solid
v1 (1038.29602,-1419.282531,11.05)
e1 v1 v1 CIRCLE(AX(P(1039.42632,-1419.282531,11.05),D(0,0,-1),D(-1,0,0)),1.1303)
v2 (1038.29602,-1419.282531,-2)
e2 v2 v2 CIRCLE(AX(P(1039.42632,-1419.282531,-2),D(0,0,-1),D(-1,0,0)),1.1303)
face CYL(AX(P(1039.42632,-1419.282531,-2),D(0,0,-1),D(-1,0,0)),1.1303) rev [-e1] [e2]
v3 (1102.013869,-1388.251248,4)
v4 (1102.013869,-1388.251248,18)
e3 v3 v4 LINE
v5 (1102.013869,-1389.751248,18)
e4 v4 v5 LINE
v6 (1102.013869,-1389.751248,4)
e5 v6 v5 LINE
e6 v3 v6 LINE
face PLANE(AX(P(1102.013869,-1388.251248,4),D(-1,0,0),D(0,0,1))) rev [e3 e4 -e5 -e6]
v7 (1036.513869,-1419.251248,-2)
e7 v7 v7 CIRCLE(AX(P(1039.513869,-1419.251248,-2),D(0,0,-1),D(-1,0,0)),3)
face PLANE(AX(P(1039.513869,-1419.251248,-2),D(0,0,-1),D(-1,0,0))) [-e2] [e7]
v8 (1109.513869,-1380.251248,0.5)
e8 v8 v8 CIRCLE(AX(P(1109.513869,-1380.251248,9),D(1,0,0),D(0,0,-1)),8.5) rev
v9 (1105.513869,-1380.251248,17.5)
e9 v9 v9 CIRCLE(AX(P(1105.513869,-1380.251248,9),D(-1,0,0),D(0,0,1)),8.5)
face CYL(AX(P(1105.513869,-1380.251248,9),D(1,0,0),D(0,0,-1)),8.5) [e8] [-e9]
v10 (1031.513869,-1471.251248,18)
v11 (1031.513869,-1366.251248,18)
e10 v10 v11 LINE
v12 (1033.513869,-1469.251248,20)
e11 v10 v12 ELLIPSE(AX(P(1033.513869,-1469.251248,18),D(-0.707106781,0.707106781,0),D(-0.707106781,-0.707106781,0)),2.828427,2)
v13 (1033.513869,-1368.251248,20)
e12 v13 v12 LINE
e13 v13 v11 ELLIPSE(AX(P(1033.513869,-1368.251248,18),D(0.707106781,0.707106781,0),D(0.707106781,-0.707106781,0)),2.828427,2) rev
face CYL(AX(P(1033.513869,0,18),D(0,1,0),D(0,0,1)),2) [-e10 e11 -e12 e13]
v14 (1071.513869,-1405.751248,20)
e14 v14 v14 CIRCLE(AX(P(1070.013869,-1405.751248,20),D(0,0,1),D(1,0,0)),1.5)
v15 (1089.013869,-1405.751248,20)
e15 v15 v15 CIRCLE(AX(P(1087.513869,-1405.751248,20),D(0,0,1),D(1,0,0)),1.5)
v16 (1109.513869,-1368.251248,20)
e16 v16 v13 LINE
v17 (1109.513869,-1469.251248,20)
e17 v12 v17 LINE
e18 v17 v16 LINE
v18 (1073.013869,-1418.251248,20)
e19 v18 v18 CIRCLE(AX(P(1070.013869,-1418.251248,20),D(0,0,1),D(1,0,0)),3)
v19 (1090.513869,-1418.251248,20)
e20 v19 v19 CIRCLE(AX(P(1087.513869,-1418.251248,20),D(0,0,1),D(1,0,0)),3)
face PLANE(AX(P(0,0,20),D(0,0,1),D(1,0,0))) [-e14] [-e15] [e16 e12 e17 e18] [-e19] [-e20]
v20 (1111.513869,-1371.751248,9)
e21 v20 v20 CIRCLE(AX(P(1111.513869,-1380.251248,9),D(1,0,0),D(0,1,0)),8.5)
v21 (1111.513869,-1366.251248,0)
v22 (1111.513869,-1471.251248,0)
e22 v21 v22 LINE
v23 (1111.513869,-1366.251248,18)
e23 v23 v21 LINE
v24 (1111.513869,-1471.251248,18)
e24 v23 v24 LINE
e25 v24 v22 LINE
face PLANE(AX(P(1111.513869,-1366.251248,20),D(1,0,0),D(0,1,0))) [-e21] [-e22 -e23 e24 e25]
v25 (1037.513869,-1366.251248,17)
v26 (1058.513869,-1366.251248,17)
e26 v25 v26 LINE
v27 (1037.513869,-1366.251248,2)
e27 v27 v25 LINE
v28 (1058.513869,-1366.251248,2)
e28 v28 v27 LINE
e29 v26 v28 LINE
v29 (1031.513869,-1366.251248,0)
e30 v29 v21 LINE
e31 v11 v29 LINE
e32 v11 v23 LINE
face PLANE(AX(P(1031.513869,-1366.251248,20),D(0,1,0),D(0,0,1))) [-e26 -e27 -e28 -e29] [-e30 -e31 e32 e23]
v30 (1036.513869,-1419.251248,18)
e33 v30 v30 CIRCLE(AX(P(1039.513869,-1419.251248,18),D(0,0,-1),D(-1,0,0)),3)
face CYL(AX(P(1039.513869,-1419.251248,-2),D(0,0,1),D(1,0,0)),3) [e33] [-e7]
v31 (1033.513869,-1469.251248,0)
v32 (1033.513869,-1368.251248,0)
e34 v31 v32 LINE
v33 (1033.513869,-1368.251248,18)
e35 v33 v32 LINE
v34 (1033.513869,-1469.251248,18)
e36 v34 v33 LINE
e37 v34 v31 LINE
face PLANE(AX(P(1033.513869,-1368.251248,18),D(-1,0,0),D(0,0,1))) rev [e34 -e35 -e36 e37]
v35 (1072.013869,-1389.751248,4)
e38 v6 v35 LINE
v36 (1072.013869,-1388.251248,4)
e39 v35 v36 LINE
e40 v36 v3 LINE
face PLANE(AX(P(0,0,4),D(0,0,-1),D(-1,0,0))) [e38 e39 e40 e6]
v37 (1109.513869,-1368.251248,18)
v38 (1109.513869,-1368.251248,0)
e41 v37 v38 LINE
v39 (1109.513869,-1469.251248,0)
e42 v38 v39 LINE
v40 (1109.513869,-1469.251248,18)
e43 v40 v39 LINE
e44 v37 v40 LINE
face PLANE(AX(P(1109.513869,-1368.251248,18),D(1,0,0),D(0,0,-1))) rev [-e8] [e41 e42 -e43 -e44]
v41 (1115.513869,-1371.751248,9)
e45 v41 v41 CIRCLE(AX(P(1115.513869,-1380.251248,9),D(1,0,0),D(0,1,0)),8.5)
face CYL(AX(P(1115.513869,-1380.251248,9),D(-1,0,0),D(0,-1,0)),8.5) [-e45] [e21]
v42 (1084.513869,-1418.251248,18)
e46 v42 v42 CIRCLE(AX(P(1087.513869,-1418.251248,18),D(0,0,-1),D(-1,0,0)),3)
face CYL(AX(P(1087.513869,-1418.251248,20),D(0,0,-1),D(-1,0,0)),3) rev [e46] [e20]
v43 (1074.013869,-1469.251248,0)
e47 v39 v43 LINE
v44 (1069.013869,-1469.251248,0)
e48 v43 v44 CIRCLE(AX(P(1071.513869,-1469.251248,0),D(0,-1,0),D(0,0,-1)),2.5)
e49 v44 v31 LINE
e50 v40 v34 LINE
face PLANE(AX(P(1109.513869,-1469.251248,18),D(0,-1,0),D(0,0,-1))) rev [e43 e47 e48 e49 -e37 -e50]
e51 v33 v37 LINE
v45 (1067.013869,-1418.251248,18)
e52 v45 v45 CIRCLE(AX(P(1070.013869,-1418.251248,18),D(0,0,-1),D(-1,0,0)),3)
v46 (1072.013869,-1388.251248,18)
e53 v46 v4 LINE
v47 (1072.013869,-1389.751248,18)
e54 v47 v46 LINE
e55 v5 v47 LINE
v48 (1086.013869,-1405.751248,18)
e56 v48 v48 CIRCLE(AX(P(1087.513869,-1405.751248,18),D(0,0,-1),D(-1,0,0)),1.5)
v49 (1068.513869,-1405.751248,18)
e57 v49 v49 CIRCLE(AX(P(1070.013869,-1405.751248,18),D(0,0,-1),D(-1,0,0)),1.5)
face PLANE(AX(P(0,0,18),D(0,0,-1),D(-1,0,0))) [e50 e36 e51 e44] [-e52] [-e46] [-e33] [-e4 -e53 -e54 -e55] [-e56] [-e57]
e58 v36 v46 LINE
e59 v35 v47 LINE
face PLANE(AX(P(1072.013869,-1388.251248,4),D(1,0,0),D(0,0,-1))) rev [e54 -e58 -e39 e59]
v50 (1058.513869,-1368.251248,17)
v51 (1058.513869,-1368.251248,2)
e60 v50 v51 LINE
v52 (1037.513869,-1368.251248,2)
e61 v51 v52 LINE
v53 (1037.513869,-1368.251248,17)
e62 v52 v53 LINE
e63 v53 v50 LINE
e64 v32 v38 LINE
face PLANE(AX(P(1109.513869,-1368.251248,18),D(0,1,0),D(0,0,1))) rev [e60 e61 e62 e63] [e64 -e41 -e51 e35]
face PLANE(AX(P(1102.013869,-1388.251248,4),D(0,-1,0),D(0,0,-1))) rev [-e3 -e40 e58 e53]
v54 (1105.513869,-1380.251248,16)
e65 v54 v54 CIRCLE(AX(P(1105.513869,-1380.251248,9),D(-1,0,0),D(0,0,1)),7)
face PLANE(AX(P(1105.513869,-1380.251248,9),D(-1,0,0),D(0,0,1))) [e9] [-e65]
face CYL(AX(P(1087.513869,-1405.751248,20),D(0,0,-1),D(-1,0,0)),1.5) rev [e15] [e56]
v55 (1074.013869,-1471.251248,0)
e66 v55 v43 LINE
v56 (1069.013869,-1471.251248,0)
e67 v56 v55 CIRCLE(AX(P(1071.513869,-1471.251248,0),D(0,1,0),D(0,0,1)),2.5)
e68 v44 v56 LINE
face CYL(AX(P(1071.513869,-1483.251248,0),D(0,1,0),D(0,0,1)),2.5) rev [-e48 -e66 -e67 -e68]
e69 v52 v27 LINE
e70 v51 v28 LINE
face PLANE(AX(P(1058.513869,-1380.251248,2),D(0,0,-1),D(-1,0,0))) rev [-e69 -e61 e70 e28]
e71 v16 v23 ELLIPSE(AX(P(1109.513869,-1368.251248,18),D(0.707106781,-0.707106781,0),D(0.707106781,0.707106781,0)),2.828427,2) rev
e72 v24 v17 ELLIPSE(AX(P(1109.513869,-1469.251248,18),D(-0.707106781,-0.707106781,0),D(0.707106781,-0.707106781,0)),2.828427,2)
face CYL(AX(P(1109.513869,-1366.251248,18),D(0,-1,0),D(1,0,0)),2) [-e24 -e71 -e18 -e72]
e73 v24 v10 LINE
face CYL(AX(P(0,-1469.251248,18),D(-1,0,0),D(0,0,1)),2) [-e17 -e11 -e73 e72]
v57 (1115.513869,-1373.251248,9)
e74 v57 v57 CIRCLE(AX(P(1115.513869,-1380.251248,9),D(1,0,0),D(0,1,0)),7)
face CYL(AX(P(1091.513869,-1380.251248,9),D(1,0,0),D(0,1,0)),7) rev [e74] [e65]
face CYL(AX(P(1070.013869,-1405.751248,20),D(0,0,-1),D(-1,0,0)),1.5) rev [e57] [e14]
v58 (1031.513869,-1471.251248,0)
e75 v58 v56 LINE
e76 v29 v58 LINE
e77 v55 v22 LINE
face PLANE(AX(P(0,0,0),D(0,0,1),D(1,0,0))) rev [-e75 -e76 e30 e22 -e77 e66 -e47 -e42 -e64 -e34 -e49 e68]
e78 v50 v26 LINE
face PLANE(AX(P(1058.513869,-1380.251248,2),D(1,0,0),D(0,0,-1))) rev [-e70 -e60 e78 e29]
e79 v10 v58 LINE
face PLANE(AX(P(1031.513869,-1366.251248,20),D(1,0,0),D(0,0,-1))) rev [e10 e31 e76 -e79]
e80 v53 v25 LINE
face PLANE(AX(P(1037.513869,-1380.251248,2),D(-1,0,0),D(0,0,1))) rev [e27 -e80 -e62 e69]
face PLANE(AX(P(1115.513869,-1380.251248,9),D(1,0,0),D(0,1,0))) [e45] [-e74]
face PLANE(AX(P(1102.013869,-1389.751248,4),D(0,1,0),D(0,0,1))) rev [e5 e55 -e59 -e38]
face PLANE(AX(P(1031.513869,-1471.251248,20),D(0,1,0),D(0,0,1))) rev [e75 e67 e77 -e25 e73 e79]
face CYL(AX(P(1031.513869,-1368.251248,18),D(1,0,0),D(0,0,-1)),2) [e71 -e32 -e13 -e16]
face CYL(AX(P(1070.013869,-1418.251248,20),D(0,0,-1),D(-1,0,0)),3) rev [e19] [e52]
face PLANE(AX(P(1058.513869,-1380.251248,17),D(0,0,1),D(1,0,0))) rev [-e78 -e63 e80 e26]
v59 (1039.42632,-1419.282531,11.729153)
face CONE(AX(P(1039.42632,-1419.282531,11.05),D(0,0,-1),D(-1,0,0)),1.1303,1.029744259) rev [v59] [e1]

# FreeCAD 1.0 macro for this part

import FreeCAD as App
import Part
import Sketcher
Q = App.Units.Quantity


def edges_at(feature, points):
    """Names of the edges that pass closest to the given points."""
    edges = feature.Shape.Edges
    near = lambda p: min(range(len(edges)), key=lambda i: edges[i].distToShape(Part.Vertex(*p))[0])
    return sorted({f"Edge{near(p) + 1}" for p in points})

doc = App.newDocument("Part")
body = doc.addObject("PartDesign::Body", "Body")

# Sketch on XY plane
sketch1 = body.newObject("Sketcher::SketchObject", "Sketch")
sketch1.AttachmentSupport = (doc.getObject("XY_Plane"), [""])
sketch1.MapMode = "FlatFace"
sketch1.addGeometry([
    Part.LineSegment(App.Vector(1032, -1366, 0), App.Vector(1032, -1471, 0)),
    Part.LineSegment(App.Vector(1032, -1471, 0), App.Vector(1112, -1471, 0)),
    Part.LineSegment(App.Vector(1112, -1471, 0), App.Vector(1112, -1366, 0)),
    Part.LineSegment(App.Vector(1112, -1366, 0), App.Vector(1032, -1366, 0)),
], False)
sketch1.addConstraint([
    Sketcher.Constraint("Coincident", 0, 2, 1, 1),
    Sketcher.Constraint("Coincident", 1, 2, 2, 1),
    Sketcher.Constraint("Coincident", 2, 2, 3, 1),
    Sketcher.Constraint("Coincident", 3, 2, 0, 1),
    Sketcher.Constraint("Vertical", 0),
    Sketcher.Constraint("Horizontal", 1),
    Sketcher.Constraint("Vertical", 2),
    Sketcher.Constraint("Horizontal", 3),
    Sketcher.Constraint("DistanceX", 1, 1, 1, 2, Q("80 mm")),
    Sketcher.Constraint("DistanceY", 0, 2, 0, 1, Q("105 mm")),
    Sketcher.Constraint("DistanceX", -1, 1, 0, 2, Q("1031.513869 mm")),
    Sketcher.Constraint("DistanceY", 0, 2, -1, 1, Q("1471.251248 mm")),
])
pad1 = body.newObject("PartDesign::Pad", "Pad")
pad1.Profile = sketch1
pad1.Length = 20

# Sketch on XY plane
sketch2 = body.newObject("Sketcher::SketchObject", "Sketch001")
sketch2.AttachmentSupport = (doc.getObject("XY_Plane"), [""])
sketch2.MapMode = "FlatFace"
sketch2.addGeometry([
    Part.Circle(App.Vector(1087.5, -1418.3, 0), App.Vector(0, 0, 1), 3),
    Part.Circle(App.Vector(1087.5, -1405.8, 0), App.Vector(0, 0, 1), 1.5),
    Part.Circle(App.Vector(1070, -1405.8, 0), App.Vector(0, 0, 1), 1.5),
    Part.Circle(App.Vector(1070, -1418.3, 0), App.Vector(0, 0, 1), 3),
], False)
sketch2.addConstraint([
    Sketcher.Constraint("Equal", 1, 2),
    Sketcher.Constraint("Equal", 0, 3),
    Sketcher.Constraint("Horizontal", 1, 3, 2, 3),
    Sketcher.Constraint("Horizontal", 0, 3, 3, 3),
    Sketcher.Constraint("Vertical", 0, 3, 1, 3),
    Sketcher.Constraint("Vertical", 2, 3, 3, 3),
    Sketcher.Constraint("Diameter", 0, Q("6 mm")),
    Sketcher.Constraint("Diameter", 1, Q("3 mm")),
    Sketcher.Constraint("DistanceY", 0, 3, 1, 3, Q("12.5 mm")),
    Sketcher.Constraint("DistanceX", 2, 3, 1, 3, Q("17.5 mm")),
    Sketcher.Constraint("DistanceX", -1, 1, 0, 3, Q("1087.513869 mm")),
    Sketcher.Constraint("DistanceY", 0, 3, -1, 1, Q("1418.251248 mm")),
])
pocket1 = body.newObject("PartDesign::Pocket", "Pocket")
pocket1.Profile = sketch2
pocket1.Type = "ThroughAll"
pocket1.Midplane = True

# Sketch on XY plane
sketch3 = body.newObject("Sketcher::SketchObject", "Sketch002")
sketch3.AttachmentSupport = (doc.getObject("XY_Plane"), [""])
sketch3.MapMode = "FlatFace"
sketch3.addGeometry([
    Part.LineSegment(App.Vector(1110, -1368, 0), App.Vector(1110, -1469, 0)),
    Part.LineSegment(App.Vector(1110, -1469, 0), App.Vector(1034, -1469, 0)),
    Part.LineSegment(App.Vector(1034, -1469, 0), App.Vector(1034, -1368, 0)),
    Part.LineSegment(App.Vector(1034, -1368, 0), App.Vector(1110, -1368, 0)),
], False)
sketch3.addConstraint([
    Sketcher.Constraint("Coincident", 0, 2, 1, 1),
    Sketcher.Constraint("Coincident", 1, 2, 2, 1),
    Sketcher.Constraint("Coincident", 2, 2, 3, 1),
    Sketcher.Constraint("Coincident", 3, 2, 0, 1),
    Sketcher.Constraint("Vertical", 0),
    Sketcher.Constraint("Horizontal", 1),
    Sketcher.Constraint("Vertical", 2),
    Sketcher.Constraint("Horizontal", 3),
    Sketcher.Constraint("DistanceX", 1, 2, 1, 1, Q("76 mm")),
    Sketcher.Constraint("DistanceY", 0, 2, 0, 1, Q("101 mm")),
    Sketcher.Constraint("DistanceX", -1, 1, 0, 2, Q("1109.513869 mm")),
    Sketcher.Constraint("DistanceY", 0, 2, -1, 1, Q("1469.251248 mm")),
])
pocket2 = body.newObject("PartDesign::Pocket", "Pocket001")
pocket2.Profile = sketch3
pocket2.Length = 18
pocket2.Reversed = True

# Sketch on YZ plane
sketch4 = body.newObject("Sketcher::SketchObject", "Sketch003")
sketch4.AttachmentSupport = (doc.getObject("YZ_Plane"), [""])
sketch4.MapMode = "FlatFace"
sketch4.AttachmentOffset = App.Placement(App.Vector(0, 0, 1109.513869), App.Rotation())
sketch4.addGeometry(Part.Circle(App.Vector(-1380, 9, 0), App.Vector(0, 0, 1), 6), False)
sketch4.addConstraint([
    Sketcher.Constraint("Diameter", 0, Q("13 mm")),
    Sketcher.Constraint("DistanceY", -1, 1, 0, 3, Q("9 mm")),
    Sketcher.Constraint("DistanceX", 0, 3, -1, 1, Q("1380.251248 mm")),
])
pocket3 = body.newObject("PartDesign::Pocket", "Pocket002")
pocket3.Profile = sketch4
pocket3.Length = 18
pocket3.Reversed = True

# Sketch on YZ plane
sketch5 = body.newObject("Sketcher::SketchObject", "Sketch004")
sketch5.AttachmentSupport = (doc.getObject("YZ_Plane"), [""])
sketch5.MapMode = "FlatFace"
sketch5.AttachmentOffset = App.Placement(App.Vector(0, 0, 1111.513869), App.Rotation())
sketch5.addGeometry(Part.Circle(App.Vector(-1380, 9, 0), App.Vector(0, 0, 1), 8), False)
sketch5.addConstraint([
    Sketcher.Constraint("Diameter", 0, Q("17 mm")),
    Sketcher.Constraint("DistanceY", -1, 1, 0, 3, Q("9 mm")),
    Sketcher.Constraint("DistanceX", 0, 3, -1, 1, Q("1380.251248 mm")),
])
pad2 = body.newObject("PartDesign::Pad", "Pad001")
pad2.Profile = sketch5
pad2.Length = 4

# Sketch on YZ plane
sketch6 = body.newObject("Sketcher::SketchObject", "Sketch005")
sketch6.AttachmentSupport = (doc.getObject("YZ_Plane"), [""])
sketch6.MapMode = "FlatFace"
sketch6.AttachmentOffset = App.Placement(App.Vector(0, 0, 1105.513869), App.Rotation())
sketch6.addGeometry(Part.Circle(App.Vector(-1380, 9, 0), App.Vector(0, 0, 1), 8), False)
sketch6.addConstraint([
    Sketcher.Constraint("Diameter", 0, Q("17 mm")),
    Sketcher.Constraint("DistanceY", -1, 1, 0, 3, Q("9 mm")),
    Sketcher.Constraint("DistanceX", 0, 3, -1, 1, Q("1380.251248 mm")),
])
pad3 = body.newObject("PartDesign::Pad", "Pad002")
pad3.Profile = sketch6
pad3.Length = 4

# Sketch on YZ plane
sketch7 = body.newObject("Sketcher::SketchObject", "Sketch006")
sketch7.AttachmentSupport = (doc.getObject("YZ_Plane"), [""])
sketch7.MapMode = "FlatFace"
sketch7.AttachmentOffset = App.Placement(App.Vector(0, 0, 1115.513869), App.Rotation())
sketch7.addGeometry(Part.Circle(App.Vector(-1380, 9, 0), App.Vector(0, 0, 1), 7), False)
sketch7.addConstraint([
    Sketcher.Constraint("Diameter", 0, Q("14 mm")),
    Sketcher.Constraint("DistanceY", -1, 1, 0, 3, Q("9 mm")),
    Sketcher.Constraint("DistanceX", 0, 3, -1, 1, Q("1380.251248 mm")),
])
pocket4 = body.newObject("PartDesign::Pocket", "Pocket003")
pocket4.Profile = sketch7
pocket4.Length = 24

# Sketch on XY plane
sketch8 = body.newObject("Sketcher::SketchObject", "Sketch007")
sketch8.AttachmentSupport = (doc.getObject("XY_Plane"), [""])
sketch8.MapMode = "FlatFace"
sketch8.AttachmentOffset = App.Placement(App.Vector(0, 0, 18), App.Rotation())
sketch8.addGeometry([
    Part.LineSegment(App.Vector(1102, -1388.3, 0), App.Vector(1102, -1389.8, 0)),
    Part.LineSegment(App.Vector(1102, -1389.8, 0), App.Vector(1072, -1389.8, 0)),
    Part.LineSegment(App.Vector(1072, -1389.8, 0), App.Vector(1072, -1388.3, 0)),
    Part.LineSegment(App.Vector(1072, -1388.3, 0), App.Vector(1102, -1388.3, 0)),
], False)
sketch8.addConstraint([
    Sketcher.Constraint("Coincident", 0, 2, 1, 1),
    Sketcher.Constraint("Coincident", 1, 2, 2, 1),
    Sketcher.Constraint("Coincident", 2, 2, 3, 1),
    Sketcher.Constraint("Coincident", 3, 2, 0, 1),
    Sketcher.Constraint("Vertical", 0),
    Sketcher.Constraint("Horizontal", 1),
    Sketcher.Constraint("Vertical", 2),
    Sketcher.Constraint("Horizontal", 3),
    Sketcher.Constraint("DistanceX", 1, 2, 1, 1, Q("30 mm")),
    Sketcher.Constraint("DistanceY", 0, 2, 0, 1, Q("1.5 mm")),
    Sketcher.Constraint("DistanceX", -1, 1, 0, 2, Q("1102.013869 mm")),
    Sketcher.Constraint("DistanceY", 0, 2, -1, 1, Q("1389.751248 mm")),
])
pad4 = body.newObject("PartDesign::Pad", "Pad003")
pad4.Profile = sketch8
pad4.Length = 14
pad4.Reversed = True

# Sketch on XZ plane
sketch9 = body.newObject("Sketcher::SketchObject", "Sketch008")
sketch9.AttachmentSupport = (doc.getObject("XZ_Plane"), [""])
sketch9.MapMode = "FlatFace"
sketch9.AttachmentOffset = App.Placement(App.Vector(0, 0, 1469.251248), App.Rotation())
sketch9.addGeometry(Part.Circle(App.Vector(1071.5, 0, 0), App.Vector(0, 0, 1), 2.5), False)
sketch9.addConstraint([
    Sketcher.Constraint("PointOnObject", 0, 3, -1),
    Sketcher.Constraint("Diameter", 0, Q("5 mm")),
    Sketcher.Constraint("DistanceX", -1, 1, 0, 3, Q("1071.513869 mm")),
])
pocket5 = body.newObject("PartDesign::Pocket", "Pocket004")
pocket5.Profile = sketch9
pocket5.Length = 14
pocket5.Reversed = True

# Sketch on XZ plane
sketch10 = body.newObject("Sketcher::SketchObject", "Sketch009")
sketch10.AttachmentSupport = (doc.getObject("XZ_Plane"), [""])
sketch10.MapMode = "FlatFace"
sketch10.AttachmentOffset = App.Placement(App.Vector(0, 0, 1366.251248), App.Rotation())
sketch10.addGeometry([
    Part.LineSegment(App.Vector(1038, 2, 0), App.Vector(1038, 17, 0)),
    Part.LineSegment(App.Vector(1038, 17, 0), App.Vector(1059, 17, 0)),
    Part.LineSegment(App.Vector(1059, 17, 0), App.Vector(1059, 2, 0)),
    Part.LineSegment(App.Vector(1059, 2, 0), App.Vector(1038, 2, 0)),
], False)
sketch10.addConstraint([
    Sketcher.Constraint("Coincident", 0, 2, 1, 1),
    Sketcher.Constraint("Coincident", 1, 2, 2, 1),
    Sketcher.Constraint("Coincident", 2, 2, 3, 1),
    Sketcher.Constraint("Coincident", 3, 2, 0, 1),
    Sketcher.Constraint("Vertical", 0),
    Sketcher.Constraint("Horizontal", 1),
    Sketcher.Constraint("Vertical", 2),
    Sketcher.Constraint("Horizontal", 3),
    Sketcher.Constraint("DistanceX", 1, 1, 1, 2, Q("21 mm")),
    Sketcher.Constraint("DistanceY", 0, 1, 0, 2, Q("15 mm")),
    Sketcher.Constraint("DistanceY", -1, 1, 0, 2, Q("17 mm")),
    Sketcher.Constraint("DistanceX", -1, 1, 0, 2, Q("1037.513869 mm")),
])
pocket6 = body.newObject("PartDesign::Pocket", "Pocket005")
pocket6.Profile = sketch10
pocket6.Length = 14
pocket6.Reversed = True
doc.recompute()

fillet = body.newObject("PartDesign::Fillet", "Fillet")
fillet.Base = (pocket6, edges_at(pocket6, [
    (1111.514, -1418.751, 20),
    (1071.514, -1366.251, 20),
    (1031.514, -1418.751, 20),
    (1071.514, -1471.251, 20),
]))
fillet.Radius = 2

# Sketch on XY plane
sketch11 = body.newObject("Sketcher::SketchObject", "Sketch010")
sketch11.AttachmentSupport = (doc.getObject("XY_Plane"), [""])
sketch11.MapMode = "FlatFace"
sketch11.AttachmentOffset = App.Placement(App.Vector(0, 0, 18), App.Rotation())
sketch11.addGeometry(Part.Circle(App.Vector(1039.5, -1419.3, 0), App.Vector(0, 0, 1), 3), False)
sketch11.addConstraint([
    Sketcher.Constraint("Diameter", 0, Q("6 mm")),
    Sketcher.Constraint("DistanceX", -1, 1, 0, 3, Q("1039.513869 mm")),
    Sketcher.Constraint("DistanceY", 0, 3, -1, 1, Q("1419.251248 mm")),
])
pad5 = body.newObject("PartDesign::Pad", "Pad004")
pad5.Profile = sketch11
pad5.Length = 20
pad5.Reversed = True

# Sketch on XY plane
sketch12 = body.newObject("Sketcher::SketchObject", "Sketch011")
sketch12.AttachmentSupport = (doc.getObject("XY_Plane"), [""])
sketch12.MapMode = "FlatFace"
sketch12.AttachmentOffset = App.Placement(App.Vector(0, 0, -2), App.Rotation())
sketch12.addGeometry(Part.Circle(App.Vector(1039.4, -1419.3, 0), App.Vector(0, 0, 1), 1.1), False)
sketch12.addConstraint([
    Sketcher.Constraint("Diameter", 0, Q("2.2606 mm")),
    Sketcher.Constraint("DistanceX", -1, 1, 0, 3, Q("1039.42632 mm")),
    Sketcher.Constraint("DistanceY", 0, 3, -1, 1, Q("1419.282531 mm")),
])
doc.recompute()
hole = body.newObject("PartDesign::Hole", "Hole")
hole.Profile = sketch12
hole.ThreadType = "None"
hole.Diameter = 2.2606
hole.DepthType = "Dimension"
hole.Depth = 13.05
hole.DrillPoint = "Angled"
hole.DrillPointAngle = 118
hole.Reversed = True

doc.recompute()
